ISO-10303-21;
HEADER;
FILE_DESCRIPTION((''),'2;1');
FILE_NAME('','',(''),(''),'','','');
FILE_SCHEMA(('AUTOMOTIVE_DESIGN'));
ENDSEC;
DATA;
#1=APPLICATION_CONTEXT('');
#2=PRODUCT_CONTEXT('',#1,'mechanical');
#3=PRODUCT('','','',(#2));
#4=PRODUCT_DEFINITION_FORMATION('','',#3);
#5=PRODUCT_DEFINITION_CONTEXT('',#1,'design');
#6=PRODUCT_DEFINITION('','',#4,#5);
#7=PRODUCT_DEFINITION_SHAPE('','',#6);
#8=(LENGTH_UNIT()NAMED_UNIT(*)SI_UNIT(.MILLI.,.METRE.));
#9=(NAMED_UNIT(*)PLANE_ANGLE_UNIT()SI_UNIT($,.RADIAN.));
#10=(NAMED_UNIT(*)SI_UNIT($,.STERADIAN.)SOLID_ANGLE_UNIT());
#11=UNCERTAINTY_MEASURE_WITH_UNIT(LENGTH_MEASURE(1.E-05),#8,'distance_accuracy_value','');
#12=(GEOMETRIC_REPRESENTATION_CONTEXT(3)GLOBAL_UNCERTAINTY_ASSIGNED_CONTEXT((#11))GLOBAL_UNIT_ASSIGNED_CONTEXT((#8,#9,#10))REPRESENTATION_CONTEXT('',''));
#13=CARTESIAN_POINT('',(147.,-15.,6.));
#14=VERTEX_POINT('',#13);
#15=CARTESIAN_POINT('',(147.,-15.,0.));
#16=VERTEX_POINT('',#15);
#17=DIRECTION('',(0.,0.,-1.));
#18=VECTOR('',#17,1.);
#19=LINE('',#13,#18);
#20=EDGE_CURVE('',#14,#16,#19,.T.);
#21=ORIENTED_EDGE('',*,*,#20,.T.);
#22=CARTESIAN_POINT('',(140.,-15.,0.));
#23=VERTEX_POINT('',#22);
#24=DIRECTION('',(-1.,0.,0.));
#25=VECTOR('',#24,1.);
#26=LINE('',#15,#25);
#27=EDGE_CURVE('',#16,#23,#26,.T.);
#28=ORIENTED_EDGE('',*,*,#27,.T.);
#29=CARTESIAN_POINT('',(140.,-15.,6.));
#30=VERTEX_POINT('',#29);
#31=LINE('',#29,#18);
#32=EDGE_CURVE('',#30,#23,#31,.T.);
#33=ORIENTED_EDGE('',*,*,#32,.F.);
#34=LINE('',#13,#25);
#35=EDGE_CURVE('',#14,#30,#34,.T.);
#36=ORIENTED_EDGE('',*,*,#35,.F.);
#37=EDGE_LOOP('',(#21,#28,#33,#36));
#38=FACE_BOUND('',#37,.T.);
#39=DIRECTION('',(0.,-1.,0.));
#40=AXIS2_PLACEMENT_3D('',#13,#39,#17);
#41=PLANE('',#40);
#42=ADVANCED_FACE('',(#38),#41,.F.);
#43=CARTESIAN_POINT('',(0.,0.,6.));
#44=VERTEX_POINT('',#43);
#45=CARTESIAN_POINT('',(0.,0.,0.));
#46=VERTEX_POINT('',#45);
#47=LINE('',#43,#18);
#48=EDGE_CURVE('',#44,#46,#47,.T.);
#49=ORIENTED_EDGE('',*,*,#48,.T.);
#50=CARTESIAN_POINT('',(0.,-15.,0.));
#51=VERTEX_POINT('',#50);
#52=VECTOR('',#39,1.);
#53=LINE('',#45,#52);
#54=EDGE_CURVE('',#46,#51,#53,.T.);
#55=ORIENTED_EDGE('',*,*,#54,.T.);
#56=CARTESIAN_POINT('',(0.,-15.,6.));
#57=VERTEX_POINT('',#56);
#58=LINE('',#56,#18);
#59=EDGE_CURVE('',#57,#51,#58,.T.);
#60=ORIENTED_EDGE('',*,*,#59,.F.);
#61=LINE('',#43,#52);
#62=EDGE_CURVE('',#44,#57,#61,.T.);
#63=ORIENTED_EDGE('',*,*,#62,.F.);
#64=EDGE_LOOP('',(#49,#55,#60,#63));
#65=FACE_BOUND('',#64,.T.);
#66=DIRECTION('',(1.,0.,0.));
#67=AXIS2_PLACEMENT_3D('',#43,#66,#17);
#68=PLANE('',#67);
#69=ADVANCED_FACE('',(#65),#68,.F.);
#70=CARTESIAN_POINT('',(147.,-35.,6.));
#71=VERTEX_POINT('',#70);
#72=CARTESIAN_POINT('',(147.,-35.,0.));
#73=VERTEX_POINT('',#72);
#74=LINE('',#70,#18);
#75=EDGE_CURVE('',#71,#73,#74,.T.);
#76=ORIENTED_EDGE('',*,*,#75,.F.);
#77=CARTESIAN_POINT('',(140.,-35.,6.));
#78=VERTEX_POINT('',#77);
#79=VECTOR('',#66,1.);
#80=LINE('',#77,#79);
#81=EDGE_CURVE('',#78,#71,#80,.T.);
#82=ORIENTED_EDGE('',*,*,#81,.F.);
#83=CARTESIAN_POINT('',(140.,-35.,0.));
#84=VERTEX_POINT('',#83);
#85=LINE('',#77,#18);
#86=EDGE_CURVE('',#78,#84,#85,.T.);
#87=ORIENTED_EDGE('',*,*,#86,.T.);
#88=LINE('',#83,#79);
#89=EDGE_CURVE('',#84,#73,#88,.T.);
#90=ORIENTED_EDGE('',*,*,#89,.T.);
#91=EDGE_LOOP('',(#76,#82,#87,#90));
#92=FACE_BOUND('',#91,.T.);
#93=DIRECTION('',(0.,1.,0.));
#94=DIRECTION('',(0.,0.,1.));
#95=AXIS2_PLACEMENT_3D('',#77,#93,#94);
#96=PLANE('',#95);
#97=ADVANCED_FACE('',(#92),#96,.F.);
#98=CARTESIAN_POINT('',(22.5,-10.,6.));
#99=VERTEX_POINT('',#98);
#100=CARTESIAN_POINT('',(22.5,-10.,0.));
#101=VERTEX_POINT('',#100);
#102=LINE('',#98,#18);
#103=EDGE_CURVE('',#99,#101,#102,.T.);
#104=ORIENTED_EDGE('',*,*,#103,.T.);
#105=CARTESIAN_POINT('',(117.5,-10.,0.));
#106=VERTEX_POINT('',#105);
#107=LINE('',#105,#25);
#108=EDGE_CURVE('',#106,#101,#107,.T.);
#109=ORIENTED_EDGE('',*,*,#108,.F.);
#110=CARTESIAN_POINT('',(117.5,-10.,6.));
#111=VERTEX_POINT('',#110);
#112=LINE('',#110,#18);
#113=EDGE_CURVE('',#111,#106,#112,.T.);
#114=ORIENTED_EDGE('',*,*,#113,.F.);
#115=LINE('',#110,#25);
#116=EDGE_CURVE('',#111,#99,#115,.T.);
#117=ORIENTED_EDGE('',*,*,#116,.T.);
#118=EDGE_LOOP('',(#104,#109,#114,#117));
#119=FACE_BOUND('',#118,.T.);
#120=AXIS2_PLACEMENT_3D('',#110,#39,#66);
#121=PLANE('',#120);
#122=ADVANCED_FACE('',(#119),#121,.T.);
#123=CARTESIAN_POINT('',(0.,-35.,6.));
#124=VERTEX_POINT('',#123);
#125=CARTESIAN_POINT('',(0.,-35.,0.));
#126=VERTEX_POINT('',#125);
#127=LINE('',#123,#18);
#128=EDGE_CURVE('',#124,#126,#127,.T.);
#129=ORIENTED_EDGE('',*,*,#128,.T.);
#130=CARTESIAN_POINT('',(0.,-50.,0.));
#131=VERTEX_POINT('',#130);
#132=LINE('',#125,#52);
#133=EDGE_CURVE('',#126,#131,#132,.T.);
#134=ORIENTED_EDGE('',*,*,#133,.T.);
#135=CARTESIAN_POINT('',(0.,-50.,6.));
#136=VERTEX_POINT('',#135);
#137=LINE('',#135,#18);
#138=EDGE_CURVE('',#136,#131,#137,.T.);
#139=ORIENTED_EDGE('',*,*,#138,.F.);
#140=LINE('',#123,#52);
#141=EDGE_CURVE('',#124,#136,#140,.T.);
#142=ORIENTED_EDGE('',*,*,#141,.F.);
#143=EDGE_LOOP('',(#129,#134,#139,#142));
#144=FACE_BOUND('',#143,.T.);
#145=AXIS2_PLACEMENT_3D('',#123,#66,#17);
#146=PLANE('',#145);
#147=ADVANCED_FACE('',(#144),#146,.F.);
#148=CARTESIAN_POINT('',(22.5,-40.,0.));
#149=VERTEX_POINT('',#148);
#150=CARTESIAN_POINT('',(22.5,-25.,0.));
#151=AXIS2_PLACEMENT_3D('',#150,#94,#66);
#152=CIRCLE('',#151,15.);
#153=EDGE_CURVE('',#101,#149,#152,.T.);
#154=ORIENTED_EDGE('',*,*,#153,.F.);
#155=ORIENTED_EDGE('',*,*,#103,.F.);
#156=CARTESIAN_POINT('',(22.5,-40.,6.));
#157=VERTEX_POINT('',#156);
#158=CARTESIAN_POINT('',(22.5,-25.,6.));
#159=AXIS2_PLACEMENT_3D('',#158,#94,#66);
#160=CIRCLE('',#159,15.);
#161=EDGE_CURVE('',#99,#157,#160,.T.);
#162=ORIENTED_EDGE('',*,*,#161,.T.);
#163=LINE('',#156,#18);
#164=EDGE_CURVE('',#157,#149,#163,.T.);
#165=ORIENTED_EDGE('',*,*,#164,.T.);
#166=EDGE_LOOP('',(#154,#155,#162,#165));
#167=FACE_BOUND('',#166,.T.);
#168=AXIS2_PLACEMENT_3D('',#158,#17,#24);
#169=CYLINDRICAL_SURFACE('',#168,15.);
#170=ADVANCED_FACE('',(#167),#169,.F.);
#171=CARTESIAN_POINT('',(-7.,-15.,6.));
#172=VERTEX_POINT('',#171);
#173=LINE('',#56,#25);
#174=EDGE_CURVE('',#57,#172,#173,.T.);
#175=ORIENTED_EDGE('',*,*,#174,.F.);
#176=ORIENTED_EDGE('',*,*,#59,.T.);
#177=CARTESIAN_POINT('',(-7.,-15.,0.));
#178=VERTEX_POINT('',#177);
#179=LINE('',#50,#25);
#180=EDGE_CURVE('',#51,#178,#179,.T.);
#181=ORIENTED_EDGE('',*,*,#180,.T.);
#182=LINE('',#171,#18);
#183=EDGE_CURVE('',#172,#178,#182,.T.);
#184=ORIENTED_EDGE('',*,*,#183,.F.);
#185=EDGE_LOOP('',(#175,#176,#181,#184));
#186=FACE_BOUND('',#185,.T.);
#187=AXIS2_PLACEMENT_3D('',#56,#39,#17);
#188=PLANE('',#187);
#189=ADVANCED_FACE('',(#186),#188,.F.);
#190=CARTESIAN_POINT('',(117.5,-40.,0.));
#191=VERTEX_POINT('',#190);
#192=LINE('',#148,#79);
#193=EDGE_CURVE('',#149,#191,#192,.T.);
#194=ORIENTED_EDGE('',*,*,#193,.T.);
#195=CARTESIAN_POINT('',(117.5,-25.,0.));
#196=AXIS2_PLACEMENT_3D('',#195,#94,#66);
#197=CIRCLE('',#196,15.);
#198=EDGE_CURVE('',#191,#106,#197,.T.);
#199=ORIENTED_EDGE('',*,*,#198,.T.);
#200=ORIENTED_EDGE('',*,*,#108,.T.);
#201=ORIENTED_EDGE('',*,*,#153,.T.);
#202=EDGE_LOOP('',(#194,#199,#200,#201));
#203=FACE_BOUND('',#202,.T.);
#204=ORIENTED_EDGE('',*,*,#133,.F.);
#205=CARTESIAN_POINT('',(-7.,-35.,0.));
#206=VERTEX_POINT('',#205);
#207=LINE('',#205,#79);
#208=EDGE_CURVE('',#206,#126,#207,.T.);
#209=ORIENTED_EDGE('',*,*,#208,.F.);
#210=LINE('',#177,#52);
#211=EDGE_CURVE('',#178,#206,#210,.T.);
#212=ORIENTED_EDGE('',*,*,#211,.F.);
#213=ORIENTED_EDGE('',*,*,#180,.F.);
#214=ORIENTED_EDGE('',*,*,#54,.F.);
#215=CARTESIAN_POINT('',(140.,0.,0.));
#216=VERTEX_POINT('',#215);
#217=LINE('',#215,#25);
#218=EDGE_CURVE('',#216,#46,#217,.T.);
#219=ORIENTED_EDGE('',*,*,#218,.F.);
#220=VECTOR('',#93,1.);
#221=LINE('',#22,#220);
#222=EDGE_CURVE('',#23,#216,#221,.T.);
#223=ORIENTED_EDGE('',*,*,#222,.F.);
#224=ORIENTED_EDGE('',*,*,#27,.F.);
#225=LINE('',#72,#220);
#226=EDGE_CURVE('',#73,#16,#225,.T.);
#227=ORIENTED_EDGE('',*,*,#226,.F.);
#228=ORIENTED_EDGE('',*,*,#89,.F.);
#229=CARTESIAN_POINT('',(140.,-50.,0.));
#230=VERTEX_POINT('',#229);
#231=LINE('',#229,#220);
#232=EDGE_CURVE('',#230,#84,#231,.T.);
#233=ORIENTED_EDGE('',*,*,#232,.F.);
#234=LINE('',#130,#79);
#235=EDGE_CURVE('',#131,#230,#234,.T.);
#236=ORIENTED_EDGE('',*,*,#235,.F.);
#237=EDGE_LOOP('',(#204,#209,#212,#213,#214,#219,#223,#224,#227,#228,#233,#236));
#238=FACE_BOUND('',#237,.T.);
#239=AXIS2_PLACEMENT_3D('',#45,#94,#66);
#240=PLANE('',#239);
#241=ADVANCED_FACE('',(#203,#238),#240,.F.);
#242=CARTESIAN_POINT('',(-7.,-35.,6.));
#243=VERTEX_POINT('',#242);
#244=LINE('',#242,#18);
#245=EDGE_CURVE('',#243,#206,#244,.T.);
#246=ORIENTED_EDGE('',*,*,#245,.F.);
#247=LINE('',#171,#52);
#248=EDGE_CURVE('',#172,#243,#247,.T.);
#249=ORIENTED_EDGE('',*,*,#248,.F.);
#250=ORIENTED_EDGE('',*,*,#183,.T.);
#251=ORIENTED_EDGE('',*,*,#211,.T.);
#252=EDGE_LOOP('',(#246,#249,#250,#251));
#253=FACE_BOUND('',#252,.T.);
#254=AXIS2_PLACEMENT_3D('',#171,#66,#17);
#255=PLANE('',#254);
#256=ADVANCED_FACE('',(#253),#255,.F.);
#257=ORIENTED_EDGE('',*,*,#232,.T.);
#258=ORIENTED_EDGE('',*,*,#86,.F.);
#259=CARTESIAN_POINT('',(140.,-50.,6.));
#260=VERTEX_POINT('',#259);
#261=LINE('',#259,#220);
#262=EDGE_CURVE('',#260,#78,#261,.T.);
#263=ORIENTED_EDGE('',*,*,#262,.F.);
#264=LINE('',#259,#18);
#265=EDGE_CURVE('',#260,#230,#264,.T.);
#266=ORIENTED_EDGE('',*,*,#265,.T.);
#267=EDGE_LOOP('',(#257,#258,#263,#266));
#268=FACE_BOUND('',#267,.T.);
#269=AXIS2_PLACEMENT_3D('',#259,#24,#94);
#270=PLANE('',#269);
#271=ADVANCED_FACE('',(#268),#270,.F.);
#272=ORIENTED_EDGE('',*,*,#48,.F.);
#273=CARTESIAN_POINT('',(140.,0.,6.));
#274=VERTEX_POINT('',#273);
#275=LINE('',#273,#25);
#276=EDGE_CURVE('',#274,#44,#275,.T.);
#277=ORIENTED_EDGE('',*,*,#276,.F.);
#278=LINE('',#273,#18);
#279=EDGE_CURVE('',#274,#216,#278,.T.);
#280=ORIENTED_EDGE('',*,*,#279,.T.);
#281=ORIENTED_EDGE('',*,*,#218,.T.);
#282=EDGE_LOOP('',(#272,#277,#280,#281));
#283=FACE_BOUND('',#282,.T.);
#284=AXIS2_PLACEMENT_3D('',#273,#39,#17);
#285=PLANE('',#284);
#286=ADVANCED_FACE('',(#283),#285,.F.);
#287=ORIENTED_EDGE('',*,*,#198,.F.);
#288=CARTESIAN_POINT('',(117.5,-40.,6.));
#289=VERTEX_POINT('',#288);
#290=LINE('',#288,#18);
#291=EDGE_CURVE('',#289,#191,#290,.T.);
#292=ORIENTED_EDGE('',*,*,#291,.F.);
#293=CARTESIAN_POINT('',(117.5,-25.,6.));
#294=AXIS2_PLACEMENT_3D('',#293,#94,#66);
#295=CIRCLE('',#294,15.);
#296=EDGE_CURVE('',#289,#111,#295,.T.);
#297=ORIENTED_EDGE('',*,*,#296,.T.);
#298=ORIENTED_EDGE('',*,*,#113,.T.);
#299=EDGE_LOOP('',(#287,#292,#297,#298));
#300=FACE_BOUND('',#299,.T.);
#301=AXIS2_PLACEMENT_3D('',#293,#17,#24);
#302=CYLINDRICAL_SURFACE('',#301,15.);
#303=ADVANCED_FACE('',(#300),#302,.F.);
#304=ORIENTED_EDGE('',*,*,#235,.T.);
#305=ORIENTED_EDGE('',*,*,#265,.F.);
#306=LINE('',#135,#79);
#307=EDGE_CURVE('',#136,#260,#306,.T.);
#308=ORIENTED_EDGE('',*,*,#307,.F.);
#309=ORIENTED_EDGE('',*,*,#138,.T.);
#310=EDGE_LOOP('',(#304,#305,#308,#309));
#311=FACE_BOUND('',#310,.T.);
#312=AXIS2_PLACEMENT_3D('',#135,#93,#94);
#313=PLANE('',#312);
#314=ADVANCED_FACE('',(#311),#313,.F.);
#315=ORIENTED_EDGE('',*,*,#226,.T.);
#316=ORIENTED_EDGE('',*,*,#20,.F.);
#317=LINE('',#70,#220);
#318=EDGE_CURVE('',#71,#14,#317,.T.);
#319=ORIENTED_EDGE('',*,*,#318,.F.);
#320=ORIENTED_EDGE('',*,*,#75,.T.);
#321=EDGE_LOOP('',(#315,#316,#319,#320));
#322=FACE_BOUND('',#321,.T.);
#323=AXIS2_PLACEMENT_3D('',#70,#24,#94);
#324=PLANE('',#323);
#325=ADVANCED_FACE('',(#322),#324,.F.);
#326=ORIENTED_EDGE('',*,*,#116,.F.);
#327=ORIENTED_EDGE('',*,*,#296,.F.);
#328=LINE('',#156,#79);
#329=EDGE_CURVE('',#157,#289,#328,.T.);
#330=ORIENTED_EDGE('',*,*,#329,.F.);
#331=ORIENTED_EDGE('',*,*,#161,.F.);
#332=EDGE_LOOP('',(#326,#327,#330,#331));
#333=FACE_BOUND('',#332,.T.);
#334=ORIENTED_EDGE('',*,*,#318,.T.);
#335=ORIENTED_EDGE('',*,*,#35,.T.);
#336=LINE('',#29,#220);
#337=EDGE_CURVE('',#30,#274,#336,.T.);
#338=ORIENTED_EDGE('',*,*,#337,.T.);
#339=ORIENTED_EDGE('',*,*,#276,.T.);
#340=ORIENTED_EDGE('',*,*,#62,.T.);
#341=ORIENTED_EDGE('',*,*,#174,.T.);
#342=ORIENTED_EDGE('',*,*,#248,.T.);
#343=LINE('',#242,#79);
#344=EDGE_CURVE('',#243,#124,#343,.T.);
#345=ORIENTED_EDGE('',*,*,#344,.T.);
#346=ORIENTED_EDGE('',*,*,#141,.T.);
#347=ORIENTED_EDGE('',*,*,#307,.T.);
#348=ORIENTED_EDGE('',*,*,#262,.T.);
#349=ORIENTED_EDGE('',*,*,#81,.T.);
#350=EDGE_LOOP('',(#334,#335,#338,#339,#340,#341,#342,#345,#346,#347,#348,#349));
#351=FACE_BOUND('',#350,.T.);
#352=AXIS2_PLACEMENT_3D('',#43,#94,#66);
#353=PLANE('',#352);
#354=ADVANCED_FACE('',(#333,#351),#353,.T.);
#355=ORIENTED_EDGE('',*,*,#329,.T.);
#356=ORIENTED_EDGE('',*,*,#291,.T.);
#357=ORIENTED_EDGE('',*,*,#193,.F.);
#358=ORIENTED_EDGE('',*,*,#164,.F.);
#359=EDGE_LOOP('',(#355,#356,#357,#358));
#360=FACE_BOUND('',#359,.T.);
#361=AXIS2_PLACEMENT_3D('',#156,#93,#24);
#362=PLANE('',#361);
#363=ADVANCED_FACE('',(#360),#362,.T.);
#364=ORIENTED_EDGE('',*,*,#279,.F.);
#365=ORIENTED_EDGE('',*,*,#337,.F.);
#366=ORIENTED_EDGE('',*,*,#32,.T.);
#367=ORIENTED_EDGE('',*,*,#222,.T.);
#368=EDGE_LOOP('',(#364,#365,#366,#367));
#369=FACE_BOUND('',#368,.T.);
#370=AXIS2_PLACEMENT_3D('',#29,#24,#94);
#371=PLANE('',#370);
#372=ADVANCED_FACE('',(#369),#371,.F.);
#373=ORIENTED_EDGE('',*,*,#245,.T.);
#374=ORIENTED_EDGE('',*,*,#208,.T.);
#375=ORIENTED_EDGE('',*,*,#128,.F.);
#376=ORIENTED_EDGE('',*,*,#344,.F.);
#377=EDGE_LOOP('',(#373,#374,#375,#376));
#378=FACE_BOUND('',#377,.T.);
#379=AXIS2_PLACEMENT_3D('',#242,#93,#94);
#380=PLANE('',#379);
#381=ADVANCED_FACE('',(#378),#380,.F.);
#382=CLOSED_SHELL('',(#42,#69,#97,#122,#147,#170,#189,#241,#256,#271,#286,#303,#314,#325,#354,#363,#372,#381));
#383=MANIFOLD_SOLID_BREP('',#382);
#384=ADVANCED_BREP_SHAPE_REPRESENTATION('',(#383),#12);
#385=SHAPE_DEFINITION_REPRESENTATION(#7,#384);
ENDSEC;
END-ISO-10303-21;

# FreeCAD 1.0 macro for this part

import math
import FreeCAD as App
import Part
import Sketcher
Q = App.Units.Quantity

doc = App.newDocument("Part")
body = doc.addObject("PartDesign::Body", "Body")

# Sketch on XY plane
sketch1 = body.newObject("Sketcher::SketchObject", "Sketch")
sketch1.AttachmentSupport = (doc.getObject("XY_Plane"), [""])
sketch1.MapMode = "FlatFace"
sketch1.addGeometry([
    Part.LineSegment(App.Vector(140, 0, 0), App.Vector(0, 0, 0)),  # 0
    Part.LineSegment(App.Vector(0, 0, 0), App.Vector(0, -15, 0)),  # 1
    Part.LineSegment(App.Vector(0, -15, 0), App.Vector(-7, -15, 0)),  # 2
    Part.LineSegment(App.Vector(-7, -15, 0), App.Vector(-7, -35, 0)),  # 3
    Part.LineSegment(App.Vector(-7, -35, 0), App.Vector(0, -35, 0)),  # 4
    Part.LineSegment(App.Vector(0, -35, 0), App.Vector(0, -50, 0)),  # 5
    Part.LineSegment(App.Vector(0, -50, 0), App.Vector(140, -50, 0)),  # 6
    Part.LineSegment(App.Vector(140, -50, 0), App.Vector(140, -35, 0)),  # 7
    Part.LineSegment(App.Vector(140, -35, 0), App.Vector(147, -35, 0)),  # 8
    Part.LineSegment(App.Vector(147, -35, 0), App.Vector(147, -15, 0)),  # 9
    Part.LineSegment(App.Vector(147, -15, 0), App.Vector(140, -15, 0)),  # 10
    Part.LineSegment(App.Vector(140, -15, 0), App.Vector(140, 0, 0)),  # 11
    Part.LineSegment(App.Vector(22, -10, 0), App.Vector(118, -10, 0)),  # 12
    Part.ArcOfCircle(Part.Circle(App.Vector(118, -25, 0), App.Vector(0, 0, 1), 15), math.radians(-90), math.radians(90)),  # 13
    Part.LineSegment(App.Vector(118, -40, 0), App.Vector(22, -40, 0)),  # 14
    Part.ArcOfCircle(Part.Circle(App.Vector(22, -25, 0), App.Vector(0, 0, 1), 15), math.radians(90), math.radians(270)),  # 15
], False)
sketch1.addConstraint([
    Sketcher.Constraint("Coincident", 0, 2, 1, 1),
    Sketcher.Constraint("Coincident", 1, 2, 2, 1),
    Sketcher.Constraint("Coincident", 2, 2, 3, 1),
    Sketcher.Constraint("Coincident", 3, 2, 4, 1),
    Sketcher.Constraint("Coincident", 4, 2, 5, 1),
    Sketcher.Constraint("Coincident", 5, 2, 6, 1),
    Sketcher.Constraint("Coincident", 6, 2, 7, 1),
    Sketcher.Constraint("Coincident", 7, 2, 8, 1),
    Sketcher.Constraint("Coincident", 8, 2, 9, 1),
    Sketcher.Constraint("Coincident", 9, 2, 10, 1),
    Sketcher.Constraint("Coincident", 10, 2, 11, 1),
    Sketcher.Constraint("Coincident", 11, 2, 0, 1),
    Sketcher.Constraint("Tangent", 12, 2, 13, 2),
    Sketcher.Constraint("Tangent", 13, 1, 14, 1),
    Sketcher.Constraint("Tangent", 14, 2, 15, 2),
    Sketcher.Constraint("Tangent", 15, 1, 12, 1),
    Sketcher.Constraint("Horizontal", 0),
    Sketcher.Constraint("Vertical", 1),
    Sketcher.Constraint("Horizontal", 2),
    Sketcher.Constraint("Vertical", 3),
    Sketcher.Constraint("Horizontal", 4),
    Sketcher.Constraint("Vertical", 5),
    Sketcher.Constraint("Horizontal", 6),
    Sketcher.Constraint("Vertical", 7),
    Sketcher.Constraint("Horizontal", 8),
    Sketcher.Constraint("Vertical", 9),
    Sketcher.Constraint("Horizontal", 10),
    Sketcher.Constraint("Vertical", 11),
    Sketcher.Constraint("Horizontal", 12),
    Sketcher.Constraint("Horizontal", 14),
    Sketcher.Constraint("Coincident", 0, 2, -1, 1),
    Sketcher.Constraint("PointOnObject", 4, 2, -2),
    Sketcher.Constraint("Horizontal", 4, 2, 7, 2),
    Sketcher.Constraint("Horizontal", 2, 2, 9, 2),
    Sketcher.Constraint("Vertical", 7, 2, 10, 2),
    Sketcher.Constraint("Equal", 4, 8),
    Sketcher.Constraint("Equal", 1, 5),
    Sketcher.Constraint("Radius", 13, Q("15 mm")),
    Sketcher.Constraint("DistanceX", 0, 2, 0, 1, Q("140 mm")),
    Sketcher.Constraint("DistanceX", 2, 2, 2, 1, Q("7 mm")),
    Sketcher.Constraint("DistanceX", 12, 1, 12, 2, Q("95 mm")),
    Sketcher.Constraint("DistanceY", 1, 2, 1, 1, Q("15 mm")),
    Sketcher.Constraint("DistanceY", 3, 2, 3, 1, Q("20 mm")),
    Sketcher.Constraint("DistanceY", 13, 3, -1, 1, Q("25 mm")),
    Sketcher.Constraint("DistanceX", -1, 1, 13, 3, Q("117.5 mm")),
])
pad1 = body.newObject("PartDesign::Pad", "Pad")
pad1.Profile = sketch1
pad1.Length = 6

doc.recompute()
